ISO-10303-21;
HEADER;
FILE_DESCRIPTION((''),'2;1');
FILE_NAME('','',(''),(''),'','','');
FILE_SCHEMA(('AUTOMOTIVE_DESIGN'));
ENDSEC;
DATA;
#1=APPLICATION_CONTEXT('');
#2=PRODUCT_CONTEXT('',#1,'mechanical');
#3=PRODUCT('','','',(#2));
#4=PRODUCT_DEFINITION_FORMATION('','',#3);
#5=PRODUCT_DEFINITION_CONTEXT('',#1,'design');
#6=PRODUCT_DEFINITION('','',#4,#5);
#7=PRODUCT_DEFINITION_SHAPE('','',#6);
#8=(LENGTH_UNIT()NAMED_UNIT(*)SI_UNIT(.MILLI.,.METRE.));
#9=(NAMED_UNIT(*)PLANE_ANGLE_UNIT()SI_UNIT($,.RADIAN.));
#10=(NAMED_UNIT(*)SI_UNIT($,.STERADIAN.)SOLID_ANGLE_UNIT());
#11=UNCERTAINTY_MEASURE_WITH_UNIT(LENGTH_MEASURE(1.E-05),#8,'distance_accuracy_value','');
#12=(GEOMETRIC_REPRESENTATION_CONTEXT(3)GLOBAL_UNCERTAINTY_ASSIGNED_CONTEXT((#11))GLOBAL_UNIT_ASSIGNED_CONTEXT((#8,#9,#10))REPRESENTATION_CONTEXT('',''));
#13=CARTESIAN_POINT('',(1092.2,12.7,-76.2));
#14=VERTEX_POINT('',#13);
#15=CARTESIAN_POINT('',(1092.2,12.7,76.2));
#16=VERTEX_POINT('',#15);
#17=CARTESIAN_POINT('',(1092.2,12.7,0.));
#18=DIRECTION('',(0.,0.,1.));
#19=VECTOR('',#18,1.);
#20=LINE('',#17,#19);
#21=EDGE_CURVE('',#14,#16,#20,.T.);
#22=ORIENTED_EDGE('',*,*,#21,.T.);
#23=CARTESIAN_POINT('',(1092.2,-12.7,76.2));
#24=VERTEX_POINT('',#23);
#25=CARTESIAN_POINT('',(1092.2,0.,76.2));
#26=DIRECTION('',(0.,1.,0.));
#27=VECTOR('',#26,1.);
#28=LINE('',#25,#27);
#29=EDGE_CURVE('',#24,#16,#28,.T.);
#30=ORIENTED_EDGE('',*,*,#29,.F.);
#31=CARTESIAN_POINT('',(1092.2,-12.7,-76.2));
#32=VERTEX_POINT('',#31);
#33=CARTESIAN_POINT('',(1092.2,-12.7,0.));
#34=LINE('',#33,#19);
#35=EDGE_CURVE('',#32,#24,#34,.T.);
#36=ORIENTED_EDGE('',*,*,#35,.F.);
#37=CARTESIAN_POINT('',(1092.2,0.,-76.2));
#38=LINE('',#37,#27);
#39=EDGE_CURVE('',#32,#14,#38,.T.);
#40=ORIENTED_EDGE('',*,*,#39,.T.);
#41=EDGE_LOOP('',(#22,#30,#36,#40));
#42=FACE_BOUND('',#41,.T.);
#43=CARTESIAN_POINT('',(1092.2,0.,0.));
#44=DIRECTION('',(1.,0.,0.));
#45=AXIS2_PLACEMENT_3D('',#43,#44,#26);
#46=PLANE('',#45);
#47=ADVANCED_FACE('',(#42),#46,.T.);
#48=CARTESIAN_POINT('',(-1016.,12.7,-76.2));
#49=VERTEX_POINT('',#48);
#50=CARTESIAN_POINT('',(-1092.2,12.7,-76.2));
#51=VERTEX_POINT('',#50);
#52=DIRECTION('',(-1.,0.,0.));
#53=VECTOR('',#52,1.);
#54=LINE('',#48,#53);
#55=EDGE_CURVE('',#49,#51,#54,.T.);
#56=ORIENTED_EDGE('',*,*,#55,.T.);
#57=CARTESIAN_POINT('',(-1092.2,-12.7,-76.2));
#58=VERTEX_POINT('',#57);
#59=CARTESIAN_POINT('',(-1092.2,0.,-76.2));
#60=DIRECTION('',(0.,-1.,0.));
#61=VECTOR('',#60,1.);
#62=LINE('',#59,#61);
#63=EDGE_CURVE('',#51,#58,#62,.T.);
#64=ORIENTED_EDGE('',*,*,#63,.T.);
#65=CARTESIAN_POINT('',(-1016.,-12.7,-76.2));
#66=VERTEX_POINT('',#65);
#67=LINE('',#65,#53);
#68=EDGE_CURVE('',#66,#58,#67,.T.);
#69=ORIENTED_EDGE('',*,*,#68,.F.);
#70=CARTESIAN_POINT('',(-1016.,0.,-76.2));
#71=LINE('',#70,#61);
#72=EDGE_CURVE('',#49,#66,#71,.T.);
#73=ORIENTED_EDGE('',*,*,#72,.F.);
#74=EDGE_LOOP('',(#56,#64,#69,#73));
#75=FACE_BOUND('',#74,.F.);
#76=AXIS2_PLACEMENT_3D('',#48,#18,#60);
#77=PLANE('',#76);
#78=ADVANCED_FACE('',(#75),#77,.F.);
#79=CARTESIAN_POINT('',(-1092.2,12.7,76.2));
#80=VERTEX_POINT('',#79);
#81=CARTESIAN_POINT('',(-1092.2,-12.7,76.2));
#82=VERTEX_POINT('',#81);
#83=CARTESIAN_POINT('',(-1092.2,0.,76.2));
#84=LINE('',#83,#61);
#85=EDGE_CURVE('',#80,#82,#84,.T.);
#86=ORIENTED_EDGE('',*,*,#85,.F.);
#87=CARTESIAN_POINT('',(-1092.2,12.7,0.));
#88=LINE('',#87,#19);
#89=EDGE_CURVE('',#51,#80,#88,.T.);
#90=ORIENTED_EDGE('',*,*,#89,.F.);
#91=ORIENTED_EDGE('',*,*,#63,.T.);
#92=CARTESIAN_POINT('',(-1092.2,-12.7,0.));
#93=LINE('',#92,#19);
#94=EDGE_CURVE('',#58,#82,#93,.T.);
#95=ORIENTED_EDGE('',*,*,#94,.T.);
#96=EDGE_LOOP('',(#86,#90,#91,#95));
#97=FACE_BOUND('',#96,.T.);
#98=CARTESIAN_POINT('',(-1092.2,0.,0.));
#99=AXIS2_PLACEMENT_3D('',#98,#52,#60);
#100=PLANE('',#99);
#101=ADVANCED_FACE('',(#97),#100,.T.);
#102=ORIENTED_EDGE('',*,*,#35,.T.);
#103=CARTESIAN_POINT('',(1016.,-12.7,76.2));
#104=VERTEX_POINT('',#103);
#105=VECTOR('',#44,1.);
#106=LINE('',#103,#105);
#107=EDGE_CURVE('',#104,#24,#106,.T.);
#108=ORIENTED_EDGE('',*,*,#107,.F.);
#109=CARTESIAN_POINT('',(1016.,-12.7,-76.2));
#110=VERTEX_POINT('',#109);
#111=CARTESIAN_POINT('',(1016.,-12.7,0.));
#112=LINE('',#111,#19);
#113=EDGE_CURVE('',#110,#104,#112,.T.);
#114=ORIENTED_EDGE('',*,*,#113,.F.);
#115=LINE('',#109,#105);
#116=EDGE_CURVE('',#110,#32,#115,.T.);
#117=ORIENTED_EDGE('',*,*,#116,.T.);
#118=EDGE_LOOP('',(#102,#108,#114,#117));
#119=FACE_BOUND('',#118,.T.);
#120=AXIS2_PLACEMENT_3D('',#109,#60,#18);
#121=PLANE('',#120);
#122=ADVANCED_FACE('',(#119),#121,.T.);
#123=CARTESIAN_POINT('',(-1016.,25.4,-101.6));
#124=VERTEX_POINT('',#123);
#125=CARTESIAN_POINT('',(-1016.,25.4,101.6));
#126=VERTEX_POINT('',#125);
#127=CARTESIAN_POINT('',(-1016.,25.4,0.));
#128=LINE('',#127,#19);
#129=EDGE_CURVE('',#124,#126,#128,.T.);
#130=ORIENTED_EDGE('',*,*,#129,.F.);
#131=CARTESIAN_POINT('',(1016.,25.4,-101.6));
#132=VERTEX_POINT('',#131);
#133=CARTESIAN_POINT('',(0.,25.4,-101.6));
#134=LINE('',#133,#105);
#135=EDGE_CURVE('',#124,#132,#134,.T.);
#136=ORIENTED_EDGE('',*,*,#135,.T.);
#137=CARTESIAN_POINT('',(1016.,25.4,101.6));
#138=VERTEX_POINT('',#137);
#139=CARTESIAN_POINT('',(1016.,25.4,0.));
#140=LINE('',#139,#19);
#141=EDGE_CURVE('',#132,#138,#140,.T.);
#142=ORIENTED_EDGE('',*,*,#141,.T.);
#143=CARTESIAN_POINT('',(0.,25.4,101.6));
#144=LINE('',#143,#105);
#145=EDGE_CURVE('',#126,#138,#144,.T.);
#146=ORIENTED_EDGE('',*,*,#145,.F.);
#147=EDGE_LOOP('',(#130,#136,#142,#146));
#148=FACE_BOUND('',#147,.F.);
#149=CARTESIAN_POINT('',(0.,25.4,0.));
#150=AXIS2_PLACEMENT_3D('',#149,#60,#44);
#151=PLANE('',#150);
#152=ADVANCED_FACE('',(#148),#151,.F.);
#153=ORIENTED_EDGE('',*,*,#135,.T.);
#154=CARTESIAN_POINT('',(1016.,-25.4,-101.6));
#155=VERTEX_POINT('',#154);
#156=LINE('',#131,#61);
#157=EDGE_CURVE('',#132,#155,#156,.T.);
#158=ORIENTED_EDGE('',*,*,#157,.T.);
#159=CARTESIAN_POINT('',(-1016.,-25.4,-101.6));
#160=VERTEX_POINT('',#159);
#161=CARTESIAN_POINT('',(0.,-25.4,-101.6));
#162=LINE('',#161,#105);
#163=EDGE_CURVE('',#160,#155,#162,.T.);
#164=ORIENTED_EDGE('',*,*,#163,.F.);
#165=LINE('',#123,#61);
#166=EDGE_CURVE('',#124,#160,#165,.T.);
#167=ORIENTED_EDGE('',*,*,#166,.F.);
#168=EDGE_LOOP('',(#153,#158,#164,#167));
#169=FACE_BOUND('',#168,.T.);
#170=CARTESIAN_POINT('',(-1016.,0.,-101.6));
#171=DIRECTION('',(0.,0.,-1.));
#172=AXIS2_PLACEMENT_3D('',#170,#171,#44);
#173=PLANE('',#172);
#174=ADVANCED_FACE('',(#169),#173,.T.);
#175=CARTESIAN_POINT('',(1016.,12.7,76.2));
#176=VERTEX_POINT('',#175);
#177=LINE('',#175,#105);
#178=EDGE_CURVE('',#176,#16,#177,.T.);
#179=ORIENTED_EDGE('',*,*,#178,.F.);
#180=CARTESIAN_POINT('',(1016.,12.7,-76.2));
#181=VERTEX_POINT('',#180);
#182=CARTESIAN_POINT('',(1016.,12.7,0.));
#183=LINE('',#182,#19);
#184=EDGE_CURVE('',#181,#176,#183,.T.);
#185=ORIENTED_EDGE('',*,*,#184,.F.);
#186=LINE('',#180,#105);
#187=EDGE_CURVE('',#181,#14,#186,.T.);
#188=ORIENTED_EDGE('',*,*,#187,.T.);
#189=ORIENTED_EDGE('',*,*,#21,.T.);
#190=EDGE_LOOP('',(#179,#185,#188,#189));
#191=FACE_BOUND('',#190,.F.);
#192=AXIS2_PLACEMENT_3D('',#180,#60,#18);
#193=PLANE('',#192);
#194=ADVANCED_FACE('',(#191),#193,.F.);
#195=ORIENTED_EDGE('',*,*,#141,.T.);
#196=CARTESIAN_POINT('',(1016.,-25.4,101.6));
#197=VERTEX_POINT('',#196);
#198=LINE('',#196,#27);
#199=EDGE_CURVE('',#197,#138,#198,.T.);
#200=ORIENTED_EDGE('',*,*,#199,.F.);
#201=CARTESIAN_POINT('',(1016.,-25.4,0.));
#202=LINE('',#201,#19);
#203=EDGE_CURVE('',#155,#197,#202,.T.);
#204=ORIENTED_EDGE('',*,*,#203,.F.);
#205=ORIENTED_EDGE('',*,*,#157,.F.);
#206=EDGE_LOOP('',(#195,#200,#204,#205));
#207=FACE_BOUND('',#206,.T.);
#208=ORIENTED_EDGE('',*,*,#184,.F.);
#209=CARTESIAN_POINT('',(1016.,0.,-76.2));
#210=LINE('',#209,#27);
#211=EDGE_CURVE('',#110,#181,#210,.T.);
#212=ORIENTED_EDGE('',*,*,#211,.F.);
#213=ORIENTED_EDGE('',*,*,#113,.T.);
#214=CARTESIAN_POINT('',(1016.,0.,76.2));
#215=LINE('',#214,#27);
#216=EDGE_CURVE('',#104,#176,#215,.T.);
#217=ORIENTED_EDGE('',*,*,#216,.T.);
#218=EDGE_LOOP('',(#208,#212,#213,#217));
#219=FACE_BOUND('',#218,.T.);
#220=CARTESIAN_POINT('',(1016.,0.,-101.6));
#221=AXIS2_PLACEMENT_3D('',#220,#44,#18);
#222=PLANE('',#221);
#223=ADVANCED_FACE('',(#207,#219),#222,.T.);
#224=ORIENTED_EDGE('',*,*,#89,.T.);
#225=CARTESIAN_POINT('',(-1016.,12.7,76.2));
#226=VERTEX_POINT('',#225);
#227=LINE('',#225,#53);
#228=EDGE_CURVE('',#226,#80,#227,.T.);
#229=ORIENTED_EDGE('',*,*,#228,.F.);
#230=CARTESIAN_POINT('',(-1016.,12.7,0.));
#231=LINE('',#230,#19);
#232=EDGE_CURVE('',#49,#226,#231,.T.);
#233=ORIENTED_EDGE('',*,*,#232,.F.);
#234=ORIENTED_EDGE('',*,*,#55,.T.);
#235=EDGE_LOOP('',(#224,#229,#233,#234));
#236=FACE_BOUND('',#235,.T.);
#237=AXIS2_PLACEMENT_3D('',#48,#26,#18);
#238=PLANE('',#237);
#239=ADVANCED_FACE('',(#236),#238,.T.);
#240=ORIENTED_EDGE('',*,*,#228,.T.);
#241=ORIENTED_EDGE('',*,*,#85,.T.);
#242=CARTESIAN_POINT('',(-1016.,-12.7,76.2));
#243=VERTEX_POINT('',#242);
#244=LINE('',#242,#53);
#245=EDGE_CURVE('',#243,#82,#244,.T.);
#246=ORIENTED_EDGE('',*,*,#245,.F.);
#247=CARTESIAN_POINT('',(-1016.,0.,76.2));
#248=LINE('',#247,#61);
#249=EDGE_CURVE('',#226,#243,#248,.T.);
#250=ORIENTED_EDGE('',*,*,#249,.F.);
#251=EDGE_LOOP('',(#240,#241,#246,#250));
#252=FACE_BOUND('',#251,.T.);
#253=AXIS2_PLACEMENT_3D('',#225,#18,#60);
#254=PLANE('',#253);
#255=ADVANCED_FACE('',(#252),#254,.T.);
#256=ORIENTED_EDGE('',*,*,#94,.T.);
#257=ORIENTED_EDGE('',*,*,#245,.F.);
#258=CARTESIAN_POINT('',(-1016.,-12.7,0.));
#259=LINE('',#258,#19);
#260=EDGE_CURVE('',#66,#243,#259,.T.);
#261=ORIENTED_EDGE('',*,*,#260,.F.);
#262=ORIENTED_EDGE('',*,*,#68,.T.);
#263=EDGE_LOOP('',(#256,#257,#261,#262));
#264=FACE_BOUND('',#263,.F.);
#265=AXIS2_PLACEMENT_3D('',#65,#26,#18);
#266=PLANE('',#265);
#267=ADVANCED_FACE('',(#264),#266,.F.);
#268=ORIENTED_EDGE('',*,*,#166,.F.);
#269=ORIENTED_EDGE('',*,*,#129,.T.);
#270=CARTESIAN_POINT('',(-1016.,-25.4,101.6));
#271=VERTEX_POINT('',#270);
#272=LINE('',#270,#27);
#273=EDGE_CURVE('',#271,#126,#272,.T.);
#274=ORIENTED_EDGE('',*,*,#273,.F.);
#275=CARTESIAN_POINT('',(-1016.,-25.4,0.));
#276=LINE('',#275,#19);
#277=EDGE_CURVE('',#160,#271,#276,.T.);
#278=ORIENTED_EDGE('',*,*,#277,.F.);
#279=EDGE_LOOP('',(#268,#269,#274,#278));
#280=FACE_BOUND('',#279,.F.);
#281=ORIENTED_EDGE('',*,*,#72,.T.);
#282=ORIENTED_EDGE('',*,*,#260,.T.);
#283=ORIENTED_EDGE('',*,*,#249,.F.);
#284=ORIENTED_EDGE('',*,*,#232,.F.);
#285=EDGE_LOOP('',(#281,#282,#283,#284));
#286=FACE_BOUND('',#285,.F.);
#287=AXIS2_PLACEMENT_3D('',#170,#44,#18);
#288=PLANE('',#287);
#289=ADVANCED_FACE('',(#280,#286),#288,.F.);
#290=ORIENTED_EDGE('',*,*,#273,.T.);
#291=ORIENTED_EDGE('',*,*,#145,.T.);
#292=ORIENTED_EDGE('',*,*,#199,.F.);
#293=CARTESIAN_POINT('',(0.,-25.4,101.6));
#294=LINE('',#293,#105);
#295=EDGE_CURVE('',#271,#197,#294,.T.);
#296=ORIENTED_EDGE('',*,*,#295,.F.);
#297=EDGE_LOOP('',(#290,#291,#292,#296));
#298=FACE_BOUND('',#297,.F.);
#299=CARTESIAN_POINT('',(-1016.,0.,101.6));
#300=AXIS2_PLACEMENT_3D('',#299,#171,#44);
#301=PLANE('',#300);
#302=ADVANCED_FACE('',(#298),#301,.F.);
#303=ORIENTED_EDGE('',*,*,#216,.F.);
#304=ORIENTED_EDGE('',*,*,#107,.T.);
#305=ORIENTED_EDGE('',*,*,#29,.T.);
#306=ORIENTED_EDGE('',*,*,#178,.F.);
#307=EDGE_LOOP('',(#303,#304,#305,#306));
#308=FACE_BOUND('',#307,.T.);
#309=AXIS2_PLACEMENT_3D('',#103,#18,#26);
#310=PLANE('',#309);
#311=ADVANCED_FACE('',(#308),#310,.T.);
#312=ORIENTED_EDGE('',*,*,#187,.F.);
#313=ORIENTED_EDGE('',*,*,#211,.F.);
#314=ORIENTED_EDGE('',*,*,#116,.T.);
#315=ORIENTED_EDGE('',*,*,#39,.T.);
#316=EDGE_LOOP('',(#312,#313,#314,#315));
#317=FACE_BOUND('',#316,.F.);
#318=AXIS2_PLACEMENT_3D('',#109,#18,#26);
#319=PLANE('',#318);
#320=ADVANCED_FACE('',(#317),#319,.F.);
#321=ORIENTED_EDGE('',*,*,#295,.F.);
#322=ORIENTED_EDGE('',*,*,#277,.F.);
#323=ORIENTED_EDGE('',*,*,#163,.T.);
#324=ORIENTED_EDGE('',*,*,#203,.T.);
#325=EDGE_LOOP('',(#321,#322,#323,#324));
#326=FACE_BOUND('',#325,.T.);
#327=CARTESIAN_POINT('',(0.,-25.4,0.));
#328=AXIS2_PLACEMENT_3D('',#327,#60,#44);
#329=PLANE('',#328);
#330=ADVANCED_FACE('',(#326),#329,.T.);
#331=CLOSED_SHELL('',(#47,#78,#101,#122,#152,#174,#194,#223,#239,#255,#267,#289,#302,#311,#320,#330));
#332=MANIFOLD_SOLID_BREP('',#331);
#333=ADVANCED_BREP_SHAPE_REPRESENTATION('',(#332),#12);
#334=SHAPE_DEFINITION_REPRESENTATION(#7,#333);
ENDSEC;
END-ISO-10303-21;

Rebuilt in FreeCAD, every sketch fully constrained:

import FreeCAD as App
import Part
import Sketcher
Q = App.Units.Quantity

doc = App.newDocument("Part")
body = doc.addObject("PartDesign::Body", "Body")

sketch1 = doc.addObject("Sketcher::SketchObject", "Sketch")
body.addObject(sketch1)
sketch1.AttachmentSupport = (doc.XZ_Plane, [""])
sketch1.MapMode = "FlatFace"
sketch1.addGeometry(Part.LineSegment(App.Vector(-1016, 102, 0), App.Vector(-1016, -102, 0)), False)
sketch1.addGeometry(Part.LineSegment(App.Vector(-1016, -102, 0), App.Vector(1016, -102, 0)), False)
sketch1.addGeometry(Part.LineSegment(App.Vector(1016, -102, 0), App.Vector(1016, 102, 0)), False)
sketch1.addGeometry(Part.LineSegment(App.Vector(1016, 102, 0), App.Vector(-1016, 102, 0)), False)
sketch1.addConstraint(Sketcher.Constraint("Coincident", 0, 2, 1, 1))
sketch1.addConstraint(Sketcher.Constraint("Coincident", 1, 2, 2, 1))
sketch1.addConstraint(Sketcher.Constraint("Coincident", 2, 2, 3, 1))
sketch1.addConstraint(Sketcher.Constraint("Coincident", 3, 2, 0, 1))
sketch1.addConstraint(Sketcher.Constraint("Vertical", 0))
sketch1.addConstraint(Sketcher.Constraint("Horizontal", 1))
sketch1.addConstraint(Sketcher.Constraint("Vertical", 2))
sketch1.addConstraint(Sketcher.Constraint("Horizontal", 3))
sketch1.addConstraint(Sketcher.Constraint("Symmetric", 0, 2, 2, 2, -1, 1))
sketch1.addConstraint(Sketcher.Constraint("DistanceX", 1, 1, 1, 2, Q("80 in")))
sketch1.addConstraint(Sketcher.Constraint("DistanceY", 0, 2, 0, 1, Q("8 in")))
pad1 = doc.addObject("PartDesign::Pad", "Pad")
body.addObject(pad1)
pad1.Profile = sketch1
pad1.Type = "TwoLengths"
pad1.Length = Q("1 in")
pad1.Length2 = Q("1 in")

sketch2 = doc.addObject("Sketcher::SketchObject", "Sketch001")
body.addObject(sketch2)
sketch2.AttachmentSupport = (doc.YZ_Plane, [""])
sketch2.MapMode = "FlatFace"
sketch2.AttachmentOffset = App.Placement(App.Vector(0, 0, 40 * 25.4), App.Rotation())
sketch2.addGeometry(Part.LineSegment(App.Vector(-13, 76, 0), App.Vector(-13, -76, 0)), False)
sketch2.addGeometry(Part.LineSegment(App.Vector(-13, -76, 0), App.Vector(13, -76, 0)), False)
sketch2.addGeometry(Part.LineSegment(App.Vector(13, -76, 0), App.Vector(13, 76, 0)), False)
sketch2.addGeometry(Part.LineSegment(App.Vector(13, 76, 0), App.Vector(-13, 76, 0)), False)
sketch2.addConstraint(Sketcher.Constraint("Coincident", 0, 2, 1, 1))
sketch2.addConstraint(Sketcher.Constraint("Coincident", 1, 2, 2, 1))
sketch2.addConstraint(Sketcher.Constraint("Coincident", 2, 2, 3, 1))
sketch2.addConstraint(Sketcher.Constraint("Coincident", 3, 2, 0, 1))
sketch2.addConstraint(Sketcher.Constraint("Vertical", 0))
sketch2.addConstraint(Sketcher.Constraint("Horizontal", 1))
sketch2.addConstraint(Sketcher.Constraint("Vertical", 2))
sketch2.addConstraint(Sketcher.Constraint("Horizontal", 3))
sketch2.addConstraint(Sketcher.Constraint("Symmetric", 0, 2, 2, 2, -1, 1))
sketch2.addConstraint(Sketcher.Constraint("DistanceX", 1, 1, 1, 2, Q("1 in")))
sketch2.addConstraint(Sketcher.Constraint("DistanceY", 0, 2, 0, 1, Q("6 in")))
pad2 = doc.addObject("PartDesign::Pad", "Pad001")
body.addObject(pad2)
pad2.Profile = sketch2
pad2.Length = Q("3 in")

sketch3 = doc.addObject("Sketcher::SketchObject", "Sketch002")
body.addObject(sketch3)
sketch3.AttachmentSupport = (doc.YZ_Plane, [""])
sketch3.MapMode = "FlatFace"
sketch3.AttachmentOffset = App.Placement(App.Vector(0, 0, -40 * 25.4), App.Rotation())
sketch3.addGeometry(Part.LineSegment(App.Vector(13, 76, 0), App.Vector(13, -76, 0)), False)
sketch3.addGeometry(Part.LineSegment(App.Vector(13, -76, 0), App.Vector(-13, -76, 0)), False)
sketch3.addGeometry(Part.LineSegment(App.Vector(-13, -76, 0), App.Vector(-13, 76, 0)), False)
sketch3.addGeometry(Part.LineSegment(App.Vector(-13, 76, 0), App.Vector(13, 76, 0)), False)
sketch3.addConstraint(Sketcher.Constraint("Coincident", 0, 2, 1, 1))
sketch3.addConstraint(Sketcher.Constraint("Coincident", 1, 2, 2, 1))
sketch3.addConstraint(Sketcher.Constraint("Coincident", 2, 2, 3, 1))
sketch3.addConstraint(Sketcher.Constraint("Coincident", 3, 2, 0, 1))
sketch3.addConstraint(Sketcher.Constraint("Vertical", 0))
sketch3.addConstraint(Sketcher.Constraint("Horizontal", 1))
sketch3.addConstraint(Sketcher.Constraint("Vertical", 2))
sketch3.addConstraint(Sketcher.Constraint("Horizontal", 3))
sketch3.addConstraint(Sketcher.Constraint("Symmetric", 0, 2, 2, 2, -1, 1))
sketch3.addConstraint(Sketcher.Constraint("DistanceX", 1, 2, 1, 1, Q("1 in")))
sketch3.addConstraint(Sketcher.Constraint("DistanceY", 0, 2, 0, 1, Q("6 in")))
pad3 = doc.addObject("PartDesign::Pad", "Pad002")
body.addObject(pad3)
pad3.Profile = sketch3
pad3.Length = Q("3 in")
pad3.Reversed = True

doc.recompute()
